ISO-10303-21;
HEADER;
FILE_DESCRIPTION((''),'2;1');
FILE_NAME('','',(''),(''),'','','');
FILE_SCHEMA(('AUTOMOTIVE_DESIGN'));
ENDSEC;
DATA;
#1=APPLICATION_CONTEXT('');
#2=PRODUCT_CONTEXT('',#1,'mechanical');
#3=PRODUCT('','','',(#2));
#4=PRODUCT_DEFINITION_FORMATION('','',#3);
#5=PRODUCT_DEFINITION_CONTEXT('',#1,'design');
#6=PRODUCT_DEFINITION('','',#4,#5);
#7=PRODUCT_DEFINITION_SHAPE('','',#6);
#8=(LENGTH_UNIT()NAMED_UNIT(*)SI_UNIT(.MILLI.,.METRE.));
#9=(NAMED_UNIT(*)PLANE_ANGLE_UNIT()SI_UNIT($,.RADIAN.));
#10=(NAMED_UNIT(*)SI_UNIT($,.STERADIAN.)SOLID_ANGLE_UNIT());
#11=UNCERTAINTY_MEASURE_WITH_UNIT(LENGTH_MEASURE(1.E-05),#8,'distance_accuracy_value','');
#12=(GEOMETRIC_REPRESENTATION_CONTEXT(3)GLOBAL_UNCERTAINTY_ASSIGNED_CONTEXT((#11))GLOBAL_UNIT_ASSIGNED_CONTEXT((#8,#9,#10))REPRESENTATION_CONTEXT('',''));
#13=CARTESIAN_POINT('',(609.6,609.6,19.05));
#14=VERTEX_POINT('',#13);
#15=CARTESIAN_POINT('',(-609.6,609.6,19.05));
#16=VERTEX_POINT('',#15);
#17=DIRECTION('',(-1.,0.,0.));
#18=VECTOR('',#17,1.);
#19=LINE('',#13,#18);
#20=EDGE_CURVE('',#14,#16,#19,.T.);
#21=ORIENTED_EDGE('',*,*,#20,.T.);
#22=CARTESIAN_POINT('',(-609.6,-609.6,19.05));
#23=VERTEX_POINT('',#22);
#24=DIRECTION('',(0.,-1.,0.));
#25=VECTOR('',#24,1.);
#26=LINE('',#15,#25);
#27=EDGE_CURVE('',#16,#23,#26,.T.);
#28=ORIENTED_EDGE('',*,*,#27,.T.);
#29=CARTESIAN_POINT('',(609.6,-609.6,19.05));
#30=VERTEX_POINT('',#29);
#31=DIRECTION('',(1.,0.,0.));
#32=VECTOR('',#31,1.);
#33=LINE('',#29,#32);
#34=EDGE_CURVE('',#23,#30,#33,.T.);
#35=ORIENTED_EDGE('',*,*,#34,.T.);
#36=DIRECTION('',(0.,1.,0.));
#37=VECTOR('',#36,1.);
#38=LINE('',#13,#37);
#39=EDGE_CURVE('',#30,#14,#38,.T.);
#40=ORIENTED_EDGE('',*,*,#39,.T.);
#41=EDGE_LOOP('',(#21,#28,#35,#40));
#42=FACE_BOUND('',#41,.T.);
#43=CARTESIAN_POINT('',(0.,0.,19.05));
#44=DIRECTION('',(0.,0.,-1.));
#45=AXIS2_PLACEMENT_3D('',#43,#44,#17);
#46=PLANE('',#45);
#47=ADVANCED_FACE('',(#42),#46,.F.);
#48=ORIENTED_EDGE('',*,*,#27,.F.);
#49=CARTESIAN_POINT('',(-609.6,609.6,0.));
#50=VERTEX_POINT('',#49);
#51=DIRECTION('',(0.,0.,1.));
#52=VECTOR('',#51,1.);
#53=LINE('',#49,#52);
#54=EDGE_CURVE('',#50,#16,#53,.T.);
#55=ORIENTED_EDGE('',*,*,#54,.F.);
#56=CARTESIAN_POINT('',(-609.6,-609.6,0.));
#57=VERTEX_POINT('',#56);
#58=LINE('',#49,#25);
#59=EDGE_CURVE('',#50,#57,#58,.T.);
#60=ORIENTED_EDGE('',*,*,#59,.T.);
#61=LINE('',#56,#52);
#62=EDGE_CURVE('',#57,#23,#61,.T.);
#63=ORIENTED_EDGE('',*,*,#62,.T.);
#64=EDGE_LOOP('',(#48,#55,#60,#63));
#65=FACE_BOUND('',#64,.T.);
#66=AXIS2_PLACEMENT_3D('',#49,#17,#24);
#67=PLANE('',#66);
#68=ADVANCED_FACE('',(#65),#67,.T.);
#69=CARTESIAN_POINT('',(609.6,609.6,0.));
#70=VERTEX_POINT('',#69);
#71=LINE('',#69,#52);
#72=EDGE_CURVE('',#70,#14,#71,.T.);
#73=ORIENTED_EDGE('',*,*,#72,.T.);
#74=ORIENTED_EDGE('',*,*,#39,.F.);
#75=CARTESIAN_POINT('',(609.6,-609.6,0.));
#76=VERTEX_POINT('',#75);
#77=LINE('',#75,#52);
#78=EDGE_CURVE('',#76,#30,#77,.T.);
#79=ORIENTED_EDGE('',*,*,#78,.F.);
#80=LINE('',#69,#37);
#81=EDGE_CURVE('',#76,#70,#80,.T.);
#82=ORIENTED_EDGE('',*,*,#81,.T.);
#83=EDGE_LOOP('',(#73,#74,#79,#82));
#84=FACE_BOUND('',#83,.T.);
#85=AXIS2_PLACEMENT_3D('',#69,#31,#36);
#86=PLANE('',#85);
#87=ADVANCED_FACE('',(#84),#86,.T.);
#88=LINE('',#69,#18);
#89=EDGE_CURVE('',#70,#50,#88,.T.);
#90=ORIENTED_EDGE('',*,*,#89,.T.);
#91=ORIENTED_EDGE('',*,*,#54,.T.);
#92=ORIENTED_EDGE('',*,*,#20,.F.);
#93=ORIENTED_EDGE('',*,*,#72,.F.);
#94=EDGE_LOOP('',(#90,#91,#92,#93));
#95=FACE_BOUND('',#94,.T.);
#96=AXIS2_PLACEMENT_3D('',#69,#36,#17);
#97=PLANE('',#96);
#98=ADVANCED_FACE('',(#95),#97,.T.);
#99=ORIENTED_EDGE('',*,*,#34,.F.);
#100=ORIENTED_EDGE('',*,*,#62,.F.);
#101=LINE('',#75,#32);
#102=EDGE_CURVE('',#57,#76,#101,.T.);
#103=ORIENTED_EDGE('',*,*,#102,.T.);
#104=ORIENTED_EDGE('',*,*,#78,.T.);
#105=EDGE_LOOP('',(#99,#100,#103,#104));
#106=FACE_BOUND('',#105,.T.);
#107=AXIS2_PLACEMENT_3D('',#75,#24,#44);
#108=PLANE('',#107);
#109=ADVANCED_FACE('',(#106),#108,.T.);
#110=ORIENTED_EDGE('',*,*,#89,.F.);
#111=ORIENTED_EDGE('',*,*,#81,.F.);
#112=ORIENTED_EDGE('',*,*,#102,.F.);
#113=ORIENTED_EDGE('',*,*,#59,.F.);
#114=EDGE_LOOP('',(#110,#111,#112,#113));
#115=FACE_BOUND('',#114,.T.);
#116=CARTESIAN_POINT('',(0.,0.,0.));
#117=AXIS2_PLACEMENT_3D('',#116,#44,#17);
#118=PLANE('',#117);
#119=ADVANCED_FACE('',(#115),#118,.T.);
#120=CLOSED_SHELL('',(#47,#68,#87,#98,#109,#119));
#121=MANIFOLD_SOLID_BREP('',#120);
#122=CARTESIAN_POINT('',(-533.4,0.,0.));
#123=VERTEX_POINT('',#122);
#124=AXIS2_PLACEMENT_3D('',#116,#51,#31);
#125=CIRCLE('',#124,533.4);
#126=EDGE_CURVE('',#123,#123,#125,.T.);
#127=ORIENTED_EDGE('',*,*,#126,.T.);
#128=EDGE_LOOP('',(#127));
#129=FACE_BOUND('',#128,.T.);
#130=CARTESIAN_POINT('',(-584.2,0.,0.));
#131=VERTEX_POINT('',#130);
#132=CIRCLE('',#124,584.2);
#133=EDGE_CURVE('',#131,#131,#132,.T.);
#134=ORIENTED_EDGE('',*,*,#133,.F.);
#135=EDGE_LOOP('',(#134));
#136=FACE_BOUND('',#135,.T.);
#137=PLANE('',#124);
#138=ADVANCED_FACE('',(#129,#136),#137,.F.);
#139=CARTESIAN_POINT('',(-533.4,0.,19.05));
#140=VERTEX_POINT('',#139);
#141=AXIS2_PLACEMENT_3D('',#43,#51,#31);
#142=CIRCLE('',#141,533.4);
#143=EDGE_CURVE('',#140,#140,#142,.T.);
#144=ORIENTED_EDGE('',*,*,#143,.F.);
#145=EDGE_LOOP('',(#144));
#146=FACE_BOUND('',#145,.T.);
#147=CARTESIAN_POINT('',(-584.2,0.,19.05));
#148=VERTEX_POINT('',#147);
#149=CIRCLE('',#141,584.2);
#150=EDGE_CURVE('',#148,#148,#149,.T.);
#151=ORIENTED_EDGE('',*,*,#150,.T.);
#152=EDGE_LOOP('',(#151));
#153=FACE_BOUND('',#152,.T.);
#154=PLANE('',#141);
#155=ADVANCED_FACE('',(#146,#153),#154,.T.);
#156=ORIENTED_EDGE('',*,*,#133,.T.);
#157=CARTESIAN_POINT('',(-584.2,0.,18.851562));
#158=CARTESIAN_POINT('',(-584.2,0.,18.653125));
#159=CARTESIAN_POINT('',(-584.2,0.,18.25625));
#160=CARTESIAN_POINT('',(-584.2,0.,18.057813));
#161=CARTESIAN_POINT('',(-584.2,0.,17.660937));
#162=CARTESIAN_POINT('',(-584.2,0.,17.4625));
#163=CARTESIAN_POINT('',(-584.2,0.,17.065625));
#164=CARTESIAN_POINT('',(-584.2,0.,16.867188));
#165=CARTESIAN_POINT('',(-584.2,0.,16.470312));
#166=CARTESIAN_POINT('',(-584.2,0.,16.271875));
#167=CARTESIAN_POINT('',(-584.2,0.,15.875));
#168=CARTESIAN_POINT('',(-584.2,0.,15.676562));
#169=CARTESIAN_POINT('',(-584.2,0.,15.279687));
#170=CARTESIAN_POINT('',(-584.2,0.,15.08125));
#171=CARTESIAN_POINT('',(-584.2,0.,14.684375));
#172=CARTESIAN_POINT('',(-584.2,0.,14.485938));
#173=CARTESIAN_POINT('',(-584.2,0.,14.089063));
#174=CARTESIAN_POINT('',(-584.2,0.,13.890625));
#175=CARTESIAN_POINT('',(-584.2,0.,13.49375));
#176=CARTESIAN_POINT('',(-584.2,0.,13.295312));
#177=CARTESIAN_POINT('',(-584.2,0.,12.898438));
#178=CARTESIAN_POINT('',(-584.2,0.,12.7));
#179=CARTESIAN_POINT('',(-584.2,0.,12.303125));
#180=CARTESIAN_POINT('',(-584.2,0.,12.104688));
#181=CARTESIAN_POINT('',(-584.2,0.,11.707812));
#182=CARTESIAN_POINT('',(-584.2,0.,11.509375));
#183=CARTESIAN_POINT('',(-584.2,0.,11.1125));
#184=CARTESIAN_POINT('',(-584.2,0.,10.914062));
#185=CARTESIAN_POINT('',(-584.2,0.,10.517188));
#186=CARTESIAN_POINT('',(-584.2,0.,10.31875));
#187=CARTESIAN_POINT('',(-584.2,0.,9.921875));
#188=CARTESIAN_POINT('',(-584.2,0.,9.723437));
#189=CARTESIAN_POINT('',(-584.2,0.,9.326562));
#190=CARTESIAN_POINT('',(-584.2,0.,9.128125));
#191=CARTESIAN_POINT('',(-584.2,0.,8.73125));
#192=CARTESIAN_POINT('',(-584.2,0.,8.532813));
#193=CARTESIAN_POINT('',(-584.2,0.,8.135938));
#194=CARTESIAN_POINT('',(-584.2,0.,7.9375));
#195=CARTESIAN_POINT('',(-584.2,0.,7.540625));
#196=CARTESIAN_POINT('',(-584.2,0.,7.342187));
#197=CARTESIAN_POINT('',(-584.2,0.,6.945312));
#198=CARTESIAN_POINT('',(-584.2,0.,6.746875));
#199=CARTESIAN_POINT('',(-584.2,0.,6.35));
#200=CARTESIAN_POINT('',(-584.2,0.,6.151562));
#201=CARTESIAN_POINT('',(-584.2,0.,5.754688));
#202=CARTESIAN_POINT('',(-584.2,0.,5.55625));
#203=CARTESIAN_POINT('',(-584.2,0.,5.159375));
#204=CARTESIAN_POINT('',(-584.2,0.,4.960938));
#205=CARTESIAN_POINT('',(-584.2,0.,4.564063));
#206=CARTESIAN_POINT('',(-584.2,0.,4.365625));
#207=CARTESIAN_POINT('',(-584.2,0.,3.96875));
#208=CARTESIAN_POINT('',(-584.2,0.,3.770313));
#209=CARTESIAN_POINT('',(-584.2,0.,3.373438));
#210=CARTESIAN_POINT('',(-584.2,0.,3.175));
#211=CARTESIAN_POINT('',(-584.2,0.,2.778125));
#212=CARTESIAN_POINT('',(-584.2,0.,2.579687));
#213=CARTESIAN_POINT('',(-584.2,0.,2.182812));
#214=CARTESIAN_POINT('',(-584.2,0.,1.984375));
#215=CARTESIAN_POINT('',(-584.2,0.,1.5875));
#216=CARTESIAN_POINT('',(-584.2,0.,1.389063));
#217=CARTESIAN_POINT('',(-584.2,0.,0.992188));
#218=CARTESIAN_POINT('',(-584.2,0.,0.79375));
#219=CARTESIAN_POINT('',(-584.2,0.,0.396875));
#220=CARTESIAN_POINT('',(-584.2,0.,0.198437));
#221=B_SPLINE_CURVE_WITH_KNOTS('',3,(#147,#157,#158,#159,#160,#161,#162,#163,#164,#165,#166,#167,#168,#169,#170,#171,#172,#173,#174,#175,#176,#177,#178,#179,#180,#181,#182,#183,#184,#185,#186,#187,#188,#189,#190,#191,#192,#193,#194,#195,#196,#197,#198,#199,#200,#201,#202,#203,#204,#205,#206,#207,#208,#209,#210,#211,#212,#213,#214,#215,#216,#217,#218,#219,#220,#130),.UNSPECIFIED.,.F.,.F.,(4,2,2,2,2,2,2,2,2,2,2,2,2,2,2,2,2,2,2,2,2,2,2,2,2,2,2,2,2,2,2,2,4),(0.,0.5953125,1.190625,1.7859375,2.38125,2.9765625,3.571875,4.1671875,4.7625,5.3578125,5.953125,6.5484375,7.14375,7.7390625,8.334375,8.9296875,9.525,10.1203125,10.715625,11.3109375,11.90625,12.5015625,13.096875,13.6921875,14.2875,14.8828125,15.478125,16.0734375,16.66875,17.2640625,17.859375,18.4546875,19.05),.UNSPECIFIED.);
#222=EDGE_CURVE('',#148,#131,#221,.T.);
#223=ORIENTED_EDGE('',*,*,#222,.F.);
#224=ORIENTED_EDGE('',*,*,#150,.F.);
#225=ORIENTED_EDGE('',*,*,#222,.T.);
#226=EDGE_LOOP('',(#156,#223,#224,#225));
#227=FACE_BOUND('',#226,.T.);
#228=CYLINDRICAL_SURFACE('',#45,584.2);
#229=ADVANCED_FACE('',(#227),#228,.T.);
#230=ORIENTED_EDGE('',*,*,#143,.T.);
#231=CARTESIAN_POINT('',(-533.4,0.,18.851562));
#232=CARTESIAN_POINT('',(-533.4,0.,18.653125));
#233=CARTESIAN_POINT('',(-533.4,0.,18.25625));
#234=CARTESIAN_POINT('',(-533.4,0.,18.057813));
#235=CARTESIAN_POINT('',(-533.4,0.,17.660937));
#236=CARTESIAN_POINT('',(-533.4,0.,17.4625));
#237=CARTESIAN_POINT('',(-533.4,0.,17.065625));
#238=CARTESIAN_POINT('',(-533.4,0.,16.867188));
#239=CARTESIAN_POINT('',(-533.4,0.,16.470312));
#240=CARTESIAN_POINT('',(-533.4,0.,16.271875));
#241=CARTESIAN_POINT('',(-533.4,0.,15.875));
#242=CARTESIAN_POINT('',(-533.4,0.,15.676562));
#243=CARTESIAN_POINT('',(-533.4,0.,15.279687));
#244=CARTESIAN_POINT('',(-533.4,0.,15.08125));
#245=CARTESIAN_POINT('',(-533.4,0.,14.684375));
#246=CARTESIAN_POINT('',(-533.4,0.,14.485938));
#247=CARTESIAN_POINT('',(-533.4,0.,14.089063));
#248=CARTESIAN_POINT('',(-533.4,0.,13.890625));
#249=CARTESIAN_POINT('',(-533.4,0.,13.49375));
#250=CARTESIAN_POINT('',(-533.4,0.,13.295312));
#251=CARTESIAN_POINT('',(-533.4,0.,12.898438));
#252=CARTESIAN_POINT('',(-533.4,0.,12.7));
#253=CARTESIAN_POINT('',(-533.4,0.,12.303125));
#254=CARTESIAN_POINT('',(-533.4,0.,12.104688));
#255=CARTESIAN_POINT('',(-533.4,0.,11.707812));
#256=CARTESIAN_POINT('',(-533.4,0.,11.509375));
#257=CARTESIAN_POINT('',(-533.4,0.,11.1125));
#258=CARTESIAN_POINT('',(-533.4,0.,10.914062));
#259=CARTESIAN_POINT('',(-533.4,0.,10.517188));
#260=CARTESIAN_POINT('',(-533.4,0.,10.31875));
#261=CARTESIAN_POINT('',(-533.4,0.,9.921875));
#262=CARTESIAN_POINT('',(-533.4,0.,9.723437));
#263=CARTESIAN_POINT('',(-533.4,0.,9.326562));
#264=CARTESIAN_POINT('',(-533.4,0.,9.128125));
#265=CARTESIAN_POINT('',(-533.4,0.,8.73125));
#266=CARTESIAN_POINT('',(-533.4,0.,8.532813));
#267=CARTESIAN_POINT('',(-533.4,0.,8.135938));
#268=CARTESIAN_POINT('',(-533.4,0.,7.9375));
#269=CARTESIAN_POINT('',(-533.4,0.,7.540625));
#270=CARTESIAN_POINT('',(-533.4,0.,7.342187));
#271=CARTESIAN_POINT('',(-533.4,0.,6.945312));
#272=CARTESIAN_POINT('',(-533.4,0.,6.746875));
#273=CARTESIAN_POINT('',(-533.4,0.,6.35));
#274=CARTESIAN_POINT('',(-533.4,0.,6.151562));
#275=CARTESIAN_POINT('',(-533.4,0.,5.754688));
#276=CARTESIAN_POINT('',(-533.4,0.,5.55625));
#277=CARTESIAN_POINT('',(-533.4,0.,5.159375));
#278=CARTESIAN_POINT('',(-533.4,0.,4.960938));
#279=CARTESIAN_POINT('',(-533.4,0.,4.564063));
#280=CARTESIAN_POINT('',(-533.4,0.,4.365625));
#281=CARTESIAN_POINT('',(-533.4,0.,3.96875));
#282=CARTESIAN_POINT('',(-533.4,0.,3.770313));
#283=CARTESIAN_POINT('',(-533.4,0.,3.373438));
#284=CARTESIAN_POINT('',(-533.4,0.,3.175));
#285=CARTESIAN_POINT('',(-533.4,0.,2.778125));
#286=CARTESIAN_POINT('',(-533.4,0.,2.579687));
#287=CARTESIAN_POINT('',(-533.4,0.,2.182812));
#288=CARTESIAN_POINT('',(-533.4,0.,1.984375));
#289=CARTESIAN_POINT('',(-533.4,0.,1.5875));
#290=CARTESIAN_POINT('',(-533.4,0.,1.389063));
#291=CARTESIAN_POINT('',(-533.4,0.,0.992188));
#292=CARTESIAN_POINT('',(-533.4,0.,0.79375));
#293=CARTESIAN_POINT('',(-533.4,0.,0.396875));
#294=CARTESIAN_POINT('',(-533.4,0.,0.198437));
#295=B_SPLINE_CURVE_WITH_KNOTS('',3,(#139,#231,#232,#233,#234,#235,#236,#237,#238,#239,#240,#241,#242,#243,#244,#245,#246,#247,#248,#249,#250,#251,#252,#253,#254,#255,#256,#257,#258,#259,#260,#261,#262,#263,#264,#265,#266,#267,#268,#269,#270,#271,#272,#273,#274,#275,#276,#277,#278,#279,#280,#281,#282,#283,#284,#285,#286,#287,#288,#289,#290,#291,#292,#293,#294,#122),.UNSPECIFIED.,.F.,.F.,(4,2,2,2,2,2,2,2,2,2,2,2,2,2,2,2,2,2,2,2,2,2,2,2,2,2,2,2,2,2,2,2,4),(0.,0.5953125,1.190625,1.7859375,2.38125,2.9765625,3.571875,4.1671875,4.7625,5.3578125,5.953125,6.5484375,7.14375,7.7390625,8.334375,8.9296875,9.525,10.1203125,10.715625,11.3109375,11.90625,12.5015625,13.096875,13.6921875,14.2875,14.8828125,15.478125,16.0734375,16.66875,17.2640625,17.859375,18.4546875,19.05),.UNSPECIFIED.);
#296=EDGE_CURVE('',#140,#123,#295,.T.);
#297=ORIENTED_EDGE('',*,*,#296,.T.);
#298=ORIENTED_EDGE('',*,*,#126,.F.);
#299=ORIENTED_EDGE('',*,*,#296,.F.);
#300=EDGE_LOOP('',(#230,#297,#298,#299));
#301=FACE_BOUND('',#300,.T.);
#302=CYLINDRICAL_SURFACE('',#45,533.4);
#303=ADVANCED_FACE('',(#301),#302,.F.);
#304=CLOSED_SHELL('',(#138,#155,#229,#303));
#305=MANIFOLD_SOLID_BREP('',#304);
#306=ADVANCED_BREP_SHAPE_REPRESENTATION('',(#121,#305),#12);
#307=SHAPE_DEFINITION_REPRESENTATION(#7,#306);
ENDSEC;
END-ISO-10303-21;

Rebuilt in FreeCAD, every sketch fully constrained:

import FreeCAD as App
import Part
import Sketcher
from FreeCAD import Vector
Q = App.Units.Quantity

doc = App.newDocument("Part")
params = doc.addObject("Spreadsheet::Sheet", "Params")
for row, (alias, value) in enumerate([
    ("sketch1_diameter", "46 in"),
    ("sketch1_diameter2", "42 in"),
    ("pad1_length", "0.75 in"),
    ("sketch2_width", "48 in"),
    ("pad2_length", "0.75 in"),
], start=1):
    params.set(f"A{row}", alias)
    params.set(f"B{row}", "=" + value)
    params.setAlias(f"B{row}", alias)

body = doc.addObject("PartDesign::Body", "Body")

# Sketch on XY plane
sketch1 = body.newObject("Sketcher::SketchObject", "Sketch")
sketch1.AttachmentSupport = (doc.getObject("XY_Plane"), [""])
sketch1.MapMode = "FlatFace"
sketch1.addGeometry(Part.Circle(Vector(0, 0, 0), Vector(0, 0, 1), 584), False)
sketch1.addGeometry(Part.Circle(Vector(0, 0, 0), Vector(0, 0, 1), 533), False)
sketch1.addConstraint(Sketcher.Constraint("Coincident", 0, 3, -1, 1))
sketch1.addConstraint(Sketcher.Constraint("Coincident", 1, 3, -1, 1))
sketch1.addConstraint(Sketcher.Constraint("Diameter", 0, Q("46 in")))
sketch1.addConstraint(Sketcher.Constraint("Diameter", 1, Q("42 in")))
sketch1.setExpression("Constraints[2]", "Params.sketch1_diameter")
sketch1.setExpression("Constraints[3]", "Params.sketch1_diameter2")
pad1 = body.newObject("PartDesign::Pad", "Pad")
pad1.Profile = sketch1
pad1.setExpression("Length", "Params.pad1_length")
body2 = doc.addObject("PartDesign::Body", "Body001")

# Sketch on XY plane
sketch2 = body2.newObject("Sketcher::SketchObject", "Sketch001")
sketch2.AttachmentSupport = (doc.getObject("XY_Plane001"), [""])
sketch2.MapMode = "FlatFace"
sketch2.AttachmentOffset = App.Placement(Vector(0, 0, 0.75 * 25.4), App.Rotation())
sketch2.addGeometry(Part.LineSegment(Vector(-610, 610, 0), Vector(-610, -610, 0)), False)
sketch2.addGeometry(Part.LineSegment(Vector(-610, -610, 0), Vector(610, -610, 0)), False)
sketch2.addGeometry(Part.LineSegment(Vector(610, -610, 0), Vector(610, 610, 0)), False)
sketch2.addGeometry(Part.LineSegment(Vector(610, 610, 0), Vector(-610, 610, 0)), False)
sketch2.addConstraint(Sketcher.Constraint("Coincident", 0, 2, 1, 1))
sketch2.addConstraint(Sketcher.Constraint("Coincident", 1, 2, 2, 1))
sketch2.addConstraint(Sketcher.Constraint("Coincident", 2, 2, 3, 1))
sketch2.addConstraint(Sketcher.Constraint("Coincident", 3, 2, 0, 1))
sketch2.addConstraint(Sketcher.Constraint("Vertical", 0))
sketch2.addConstraint(Sketcher.Constraint("Horizontal", 1))
sketch2.addConstraint(Sketcher.Constraint("Vertical", 2))
sketch2.addConstraint(Sketcher.Constraint("Horizontal", 3))
sketch2.addConstraint(Sketcher.Constraint("Symmetric", 0, 2, 2, 2, -1, 1))
sketch2.addConstraint(Sketcher.Constraint("Equal", 3, 0))
sketch2.addConstraint(Sketcher.Constraint("DistanceX", 1, 1, 1, 2, Q("48 in")))
sketch2.setExpression("Constraints[10]", "Params.sketch2_width")
pad2 = body2.newObject("PartDesign::Pad", "Pad001")
pad2.Profile = sketch2
pad2.setExpression("Length", "Params.pad2_length")
pad2.Reversed = True

doc.recompute()
